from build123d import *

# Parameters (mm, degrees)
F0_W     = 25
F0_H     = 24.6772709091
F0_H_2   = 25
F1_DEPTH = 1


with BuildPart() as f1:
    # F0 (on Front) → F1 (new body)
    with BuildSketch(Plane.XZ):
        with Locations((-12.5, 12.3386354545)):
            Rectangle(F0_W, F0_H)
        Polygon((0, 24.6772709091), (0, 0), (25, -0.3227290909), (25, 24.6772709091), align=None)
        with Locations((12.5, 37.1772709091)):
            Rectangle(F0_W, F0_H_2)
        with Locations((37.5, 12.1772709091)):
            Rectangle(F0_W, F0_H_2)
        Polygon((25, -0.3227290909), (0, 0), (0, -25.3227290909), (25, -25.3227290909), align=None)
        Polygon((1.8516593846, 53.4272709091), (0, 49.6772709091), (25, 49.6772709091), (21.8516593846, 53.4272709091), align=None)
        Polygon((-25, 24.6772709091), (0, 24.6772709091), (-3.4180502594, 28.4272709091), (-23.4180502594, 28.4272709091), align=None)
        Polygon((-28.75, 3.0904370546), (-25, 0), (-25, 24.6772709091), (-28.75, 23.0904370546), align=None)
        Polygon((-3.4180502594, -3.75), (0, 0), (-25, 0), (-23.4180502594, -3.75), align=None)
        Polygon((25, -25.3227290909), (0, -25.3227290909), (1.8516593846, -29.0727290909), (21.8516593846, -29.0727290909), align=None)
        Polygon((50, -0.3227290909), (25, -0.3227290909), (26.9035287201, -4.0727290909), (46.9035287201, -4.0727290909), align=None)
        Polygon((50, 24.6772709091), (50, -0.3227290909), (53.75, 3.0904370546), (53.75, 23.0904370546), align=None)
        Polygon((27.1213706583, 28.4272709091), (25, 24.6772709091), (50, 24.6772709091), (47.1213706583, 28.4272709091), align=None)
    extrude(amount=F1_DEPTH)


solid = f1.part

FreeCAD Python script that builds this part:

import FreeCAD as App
import Part
import Sketcher

V = App.Vector


def add_polygon(sketch, points):
    """Adds a closed chain of lines whose ends are joined by coincident constraints."""
    first, n = sketch.GeometryCount, len(points)
    for a, b in zip(points, points[1:] + points[:1]):
        sketch.addGeometry(Part.LineSegment(App.Vector(*a, 0), App.Vector(*b, 0)), False)
    for i in range(n):
        sketch.addConstraint(Sketcher.Constraint("Coincident", first + i, 2, first + (i + 1) % n, 1))

doc = App.newDocument("Part")
params = doc.addObject("Spreadsheet::Sheet", "Params")
for row, (alias, value) in enumerate([
    ("sketch1_width", "20 mm"),
    ("sketch1_height", "25 mm"),
    ("pad1_length", "1 mm"),
], start=1):
    params.set(f"A{row}", alias)
    params.set(f"B{row}", "=" + value)
    params.setAlias(f"B{row}", alias)

body = doc.addObject("PartDesign::Body", "Body")

# Sketch on XZ plane
sketch1 = body.newObject("Sketcher::SketchObject", "Sketch")
sketch1.AttachmentSupport = (doc.getObject("XZ_Plane"), [""])
sketch1.MapMode = "FlatFace"
add_polygon(sketch1, [(0, 0), (0, -25.322729), (1.851659, -29.072729), (21.851659, -29.072729), (25, -25.322729), (25, -0.322729), (26.903529, -4.072729), (46.903529, -4.072729), (50, -0.322729), (53.75, 3.090437), (53.75, 23.090437), (50, 24.677271), (47.121371, 28.427271), (27.121371, 28.427271), (25, 24.677271), (25, 49.677271), (21.851659, 53.427271), (1.851659, 53.427271), (0, 49.677271), (0, 24.677271), (-3.41805, 28.427271), (-23.41805, 28.427271), (-25, 24.677271), (-28.75, 23.090437), (-28.75, 3.090437), (-25, 0), (-23.41805, -3.75), (-3.41805, -3.75)])  # lines 0-27
sketch1.addConstraint([
    Sketcher.Constraint("Vertical", 0),
    Sketcher.Constraint("Horizontal", 2),
    Sketcher.Constraint("Vertical", 4),
    Sketcher.Constraint("Horizontal", 6),
    Sketcher.Constraint("Vertical", 9),
    Sketcher.Constraint("Horizontal", 12),
    Sketcher.Constraint("Vertical", 14),
    Sketcher.Constraint("Horizontal", 16),
    Sketcher.Constraint("Vertical", 18),
    Sketcher.Constraint("Horizontal", 20),
    Sketcher.Constraint("Vertical", 23),
    Sketcher.Constraint("Horizontal", 26),
    Sketcher.Constraint("Coincident", 27, 2, -1, 1),
    Sketcher.Constraint("Symmetric", 13, 2, 21, 2, -2),
    Sketcher.Constraint("PointOnObject", 17, 2, -2),
    Sketcher.Constraint("PointOnObject", 24, 2, -1),
    Sketcher.Constraint("Horizontal", 0, 2, 3, 2),
    Sketcher.Constraint("Horizontal", 4, 2, 7, 2),
    Sketcher.Constraint("Horizontal", 10, 2, 13, 2),
    Sketcher.Constraint("Horizontal", 14, 2, 17, 2),
    Sketcher.Constraint("Horizontal", 13, 2, 18, 2),
    Sketcher.Constraint("Horizontal", 12, 2, 19, 2),
    Sketcher.Constraint("Horizontal", 9, 2, 22, 2),
    Sketcher.Constraint("Horizontal", 8, 2, 23, 2),
    Sketcher.Constraint("Vertical", 7, 2, 10, 2),
    Sketcher.Constraint("Vertical", 4, 2, 13, 2),
    Sketcher.Constraint("Vertical", 2, 2, 15, 2),
    Sketcher.Constraint("Vertical", 1, 2, 16, 2),
    Sketcher.Constraint("Vertical", 21, 2, 24, 2),
    Sketcher.Constraint("Vertical", 20, 2, 25, 2),
    Sketcher.Constraint("Vertical", 19, 2, 26, 2),
    Sketcher.Constraint("Equal", 2, 6),
    Sketcher.Constraint("Equal", 6, 12),
    Sketcher.Constraint("Equal", 16, 20),
    Sketcher.Constraint("Equal", 26, 9),
    Sketcher.Constraint("Equal", 4, 14),
    Sketcher.Constraint("Equal", 3, 15),
    Sketcher.Constraint("Equal", 10, 22),
    Sketcher.Constraint("Equal", 21, 25),
    Sketcher.Constraint("DistanceX", 2, 1, 2, 2, 20.0),
    Sketcher.Constraint("DistanceY", 4, 1, 4, 2, 25.0),
    Sketcher.Constraint("DistanceX", -1, 1, 3, 2, 25.0),
    Sketcher.Constraint("DistanceX", -1, 1, 7, 2, 50.0),
    Sketcher.Constraint("DistanceY", 2, 2, 5, 2, 25.0),
    Sketcher.Constraint("DistanceY", 7, 2, 10, 2, 25.0),
    Sketcher.Constraint("DistanceY", 12, 2, 15, 2, 25.0),
    Sketcher.Constraint("DistanceY", 6, 2, 11, 2, 32.5),
    Sketcher.Constraint("DistanceX", -1, 1, 8, 2, 53.75),
    Sketcher.Constraint("DistanceY", 0, 2, 0, 1, 25.322729),
    Sketcher.Constraint("Distance", 1, 4.182241),
    Sketcher.Constraint("Distance", 7, 4.863192),
    Sketcher.Constraint("Distance", 8, 5.07072),
    Sketcher.Constraint("Distance", 19, 5.074009),
    Sketcher.Constraint("DistanceX", -1, 1, 11, 2, 47.121371),
])
sketch1.setExpression("Constraints[67]", "Params.sketch1_width")
sketch1.setExpression("Constraints[68]", "Params.sketch1_height")
pad1 = body.newObject("PartDesign::Pad", "Pad")
pad1.Profile = sketch1
pad1.setExpression("Length", "Params.pad1_length")

doc.recompute()
